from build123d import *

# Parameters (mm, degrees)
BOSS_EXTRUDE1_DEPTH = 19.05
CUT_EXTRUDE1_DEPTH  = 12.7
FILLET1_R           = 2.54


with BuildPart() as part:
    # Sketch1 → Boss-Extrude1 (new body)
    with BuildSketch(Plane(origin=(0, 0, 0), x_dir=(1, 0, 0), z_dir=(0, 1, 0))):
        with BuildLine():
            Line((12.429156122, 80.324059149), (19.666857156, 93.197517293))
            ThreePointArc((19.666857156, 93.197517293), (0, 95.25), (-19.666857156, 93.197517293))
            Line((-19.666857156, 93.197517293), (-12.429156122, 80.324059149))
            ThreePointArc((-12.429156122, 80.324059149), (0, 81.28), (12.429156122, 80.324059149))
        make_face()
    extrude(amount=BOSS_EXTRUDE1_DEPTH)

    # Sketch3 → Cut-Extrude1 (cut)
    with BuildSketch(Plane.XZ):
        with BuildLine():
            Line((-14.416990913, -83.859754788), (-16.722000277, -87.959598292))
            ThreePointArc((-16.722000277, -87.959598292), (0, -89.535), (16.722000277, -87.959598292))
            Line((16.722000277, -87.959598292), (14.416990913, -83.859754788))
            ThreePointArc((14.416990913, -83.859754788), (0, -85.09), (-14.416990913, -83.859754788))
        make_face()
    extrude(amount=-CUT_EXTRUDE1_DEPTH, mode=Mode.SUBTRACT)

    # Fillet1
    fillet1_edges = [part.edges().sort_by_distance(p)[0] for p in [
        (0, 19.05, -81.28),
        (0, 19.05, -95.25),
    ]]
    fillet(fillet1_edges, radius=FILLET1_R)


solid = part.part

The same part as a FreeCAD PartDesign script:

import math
import FreeCAD as App
import Part
import Sketcher

V = App.Vector
Q = App.Units.Quantity


def edges_at(feature, points):
    """Names of the edges that pass closest to the given points."""
    edges = feature.Shape.Edges
    near = lambda p: min(range(len(edges)), key=lambda i: edges[i].distToShape(Part.Vertex(*p))[0])
    return sorted({f"Edge{near(p) + 1}" for p in points})

doc = App.newDocument("Part")
body = doc.addObject("PartDesign::Body", "Body")

sketch1 = body.newObject("Sketcher::SketchObject", "Sketch")
sketch1.AttachmentSupport = (doc.getObject("XZ_Plane"), [""])
sketch1.MapMode = "FlatFace"
sketch1.addGeometry([
    Part.LineSegment(V(12.429156, -80.324059, 0), V(19.666857, -93.197517, 0)),
    Part.ArcOfCircle(Part.Circle(V(0, 0, 0), V(0, 0, 1), 95.25), math.radians(-101.915928), math.radians(-78.084072)),
    Part.LineSegment(V(-19.666857, -93.197517, 0), V(-12.429156, -80.324059, 0)),
    Part.ArcOfCircle(Part.Circle(V(0, 0, 0), V(0, 0, 1), 81.28), math.radians(-98.796053), math.radians(-81.203947)),
], False)
sketch1.addConstraint([
    Sketcher.Constraint("Coincident", 0, 2, 1, 2),
    Sketcher.Constraint("Coincident", 1, 1, 2, 1),
    Sketcher.Constraint("Coincident", 2, 2, 3, 1),
    Sketcher.Constraint("Coincident", 3, 2, 0, 1),
    Sketcher.Constraint("Coincident", 1, 3, -1, 1),
    Sketcher.Constraint("Coincident", 3, 3, -1, 1),
    Sketcher.Constraint("Horizontal", 0, 2, 1, 1),
    Sketcher.Constraint("Horizontal", 2, 2, 3, 2),
    Sketcher.Constraint("Radius", 3, Q("3.2 in")),
    Sketcher.Constraint("Radius", 1, Q("3.75 in")),
    Sketcher.Constraint("DistanceX", 1, 1, 2, 2, Q("7.237701 mm")),
    Sketcher.Constraint("DistanceY", 2, 2, -1, 1, Q("80.324059 mm")),
])
pad1 = body.newObject("PartDesign::Pad", "Pad")
pad1.Profile = sketch1
pad1.Length = Q("0.75 in")
pad1.Reversed = True

sketch2 = body.newObject("Sketcher::SketchObject", "Sketch001")
sketch2.AttachmentSupport = (doc.getObject("XZ_Plane"), [""])
sketch2.MapMode = "FlatFace"
sketch2.addGeometry([
    Part.LineSegment(V(-14.416991, -83.859755, 0), V(-16.722, -87.959598, 0)),
    Part.ArcOfCircle(Part.Circle(V(0, 0, 0), V(0, 0, 1), 89.535), math.radians(-100.764051), math.radians(-79.235949)),
    Part.LineSegment(V(16.722, -87.959598, 0), V(14.416991, -83.859755, 0)),
    Part.ArcOfCircle(Part.Circle(V(0, 0, 0), V(0, 0, 1), 85.09), math.radians(-99.754811), math.radians(-80.245189)),
], False)
sketch2.addConstraint([
    Sketcher.Constraint("Coincident", 0, 2, 1, 1),
    Sketcher.Constraint("Coincident", 1, 2, 2, 1),
    Sketcher.Constraint("Coincident", 2, 2, 3, 2),
    Sketcher.Constraint("Coincident", 3, 1, 0, 1),
    Sketcher.Constraint("Coincident", 1, 3, -1, 1),
    Sketcher.Constraint("Coincident", 3, 3, -1, 1),
    Sketcher.Constraint("Horizontal", 0, 2, 1, 2),
    Sketcher.Constraint("Horizontal", 2, 2, 3, 1),
    Sketcher.Constraint("Radius", 3, Q("3.35 in")),
    Sketcher.Constraint("Radius", 1, Q("3.525 in")),
    Sketcher.Constraint("DistanceX", 0, 2, -1, 1, Q("16.722 mm")),
    Sketcher.Constraint("Distance", 0, Q("4.70338 mm")),
])
pocket1 = body.newObject("PartDesign::Pocket", "Pocket")
pocket1.Profile = sketch2
pocket1.Length = Q("0.5 in")
doc.recompute()

fillet = body.newObject("PartDesign::Fillet", "Fillet")
fillet.Base = (pocket1, edges_at(pocket1, [(0, 19.05, -81.28), (0, 19.05, -95.25)]))
fillet.Radius = Q("0.1 in")

doc.recompute()
